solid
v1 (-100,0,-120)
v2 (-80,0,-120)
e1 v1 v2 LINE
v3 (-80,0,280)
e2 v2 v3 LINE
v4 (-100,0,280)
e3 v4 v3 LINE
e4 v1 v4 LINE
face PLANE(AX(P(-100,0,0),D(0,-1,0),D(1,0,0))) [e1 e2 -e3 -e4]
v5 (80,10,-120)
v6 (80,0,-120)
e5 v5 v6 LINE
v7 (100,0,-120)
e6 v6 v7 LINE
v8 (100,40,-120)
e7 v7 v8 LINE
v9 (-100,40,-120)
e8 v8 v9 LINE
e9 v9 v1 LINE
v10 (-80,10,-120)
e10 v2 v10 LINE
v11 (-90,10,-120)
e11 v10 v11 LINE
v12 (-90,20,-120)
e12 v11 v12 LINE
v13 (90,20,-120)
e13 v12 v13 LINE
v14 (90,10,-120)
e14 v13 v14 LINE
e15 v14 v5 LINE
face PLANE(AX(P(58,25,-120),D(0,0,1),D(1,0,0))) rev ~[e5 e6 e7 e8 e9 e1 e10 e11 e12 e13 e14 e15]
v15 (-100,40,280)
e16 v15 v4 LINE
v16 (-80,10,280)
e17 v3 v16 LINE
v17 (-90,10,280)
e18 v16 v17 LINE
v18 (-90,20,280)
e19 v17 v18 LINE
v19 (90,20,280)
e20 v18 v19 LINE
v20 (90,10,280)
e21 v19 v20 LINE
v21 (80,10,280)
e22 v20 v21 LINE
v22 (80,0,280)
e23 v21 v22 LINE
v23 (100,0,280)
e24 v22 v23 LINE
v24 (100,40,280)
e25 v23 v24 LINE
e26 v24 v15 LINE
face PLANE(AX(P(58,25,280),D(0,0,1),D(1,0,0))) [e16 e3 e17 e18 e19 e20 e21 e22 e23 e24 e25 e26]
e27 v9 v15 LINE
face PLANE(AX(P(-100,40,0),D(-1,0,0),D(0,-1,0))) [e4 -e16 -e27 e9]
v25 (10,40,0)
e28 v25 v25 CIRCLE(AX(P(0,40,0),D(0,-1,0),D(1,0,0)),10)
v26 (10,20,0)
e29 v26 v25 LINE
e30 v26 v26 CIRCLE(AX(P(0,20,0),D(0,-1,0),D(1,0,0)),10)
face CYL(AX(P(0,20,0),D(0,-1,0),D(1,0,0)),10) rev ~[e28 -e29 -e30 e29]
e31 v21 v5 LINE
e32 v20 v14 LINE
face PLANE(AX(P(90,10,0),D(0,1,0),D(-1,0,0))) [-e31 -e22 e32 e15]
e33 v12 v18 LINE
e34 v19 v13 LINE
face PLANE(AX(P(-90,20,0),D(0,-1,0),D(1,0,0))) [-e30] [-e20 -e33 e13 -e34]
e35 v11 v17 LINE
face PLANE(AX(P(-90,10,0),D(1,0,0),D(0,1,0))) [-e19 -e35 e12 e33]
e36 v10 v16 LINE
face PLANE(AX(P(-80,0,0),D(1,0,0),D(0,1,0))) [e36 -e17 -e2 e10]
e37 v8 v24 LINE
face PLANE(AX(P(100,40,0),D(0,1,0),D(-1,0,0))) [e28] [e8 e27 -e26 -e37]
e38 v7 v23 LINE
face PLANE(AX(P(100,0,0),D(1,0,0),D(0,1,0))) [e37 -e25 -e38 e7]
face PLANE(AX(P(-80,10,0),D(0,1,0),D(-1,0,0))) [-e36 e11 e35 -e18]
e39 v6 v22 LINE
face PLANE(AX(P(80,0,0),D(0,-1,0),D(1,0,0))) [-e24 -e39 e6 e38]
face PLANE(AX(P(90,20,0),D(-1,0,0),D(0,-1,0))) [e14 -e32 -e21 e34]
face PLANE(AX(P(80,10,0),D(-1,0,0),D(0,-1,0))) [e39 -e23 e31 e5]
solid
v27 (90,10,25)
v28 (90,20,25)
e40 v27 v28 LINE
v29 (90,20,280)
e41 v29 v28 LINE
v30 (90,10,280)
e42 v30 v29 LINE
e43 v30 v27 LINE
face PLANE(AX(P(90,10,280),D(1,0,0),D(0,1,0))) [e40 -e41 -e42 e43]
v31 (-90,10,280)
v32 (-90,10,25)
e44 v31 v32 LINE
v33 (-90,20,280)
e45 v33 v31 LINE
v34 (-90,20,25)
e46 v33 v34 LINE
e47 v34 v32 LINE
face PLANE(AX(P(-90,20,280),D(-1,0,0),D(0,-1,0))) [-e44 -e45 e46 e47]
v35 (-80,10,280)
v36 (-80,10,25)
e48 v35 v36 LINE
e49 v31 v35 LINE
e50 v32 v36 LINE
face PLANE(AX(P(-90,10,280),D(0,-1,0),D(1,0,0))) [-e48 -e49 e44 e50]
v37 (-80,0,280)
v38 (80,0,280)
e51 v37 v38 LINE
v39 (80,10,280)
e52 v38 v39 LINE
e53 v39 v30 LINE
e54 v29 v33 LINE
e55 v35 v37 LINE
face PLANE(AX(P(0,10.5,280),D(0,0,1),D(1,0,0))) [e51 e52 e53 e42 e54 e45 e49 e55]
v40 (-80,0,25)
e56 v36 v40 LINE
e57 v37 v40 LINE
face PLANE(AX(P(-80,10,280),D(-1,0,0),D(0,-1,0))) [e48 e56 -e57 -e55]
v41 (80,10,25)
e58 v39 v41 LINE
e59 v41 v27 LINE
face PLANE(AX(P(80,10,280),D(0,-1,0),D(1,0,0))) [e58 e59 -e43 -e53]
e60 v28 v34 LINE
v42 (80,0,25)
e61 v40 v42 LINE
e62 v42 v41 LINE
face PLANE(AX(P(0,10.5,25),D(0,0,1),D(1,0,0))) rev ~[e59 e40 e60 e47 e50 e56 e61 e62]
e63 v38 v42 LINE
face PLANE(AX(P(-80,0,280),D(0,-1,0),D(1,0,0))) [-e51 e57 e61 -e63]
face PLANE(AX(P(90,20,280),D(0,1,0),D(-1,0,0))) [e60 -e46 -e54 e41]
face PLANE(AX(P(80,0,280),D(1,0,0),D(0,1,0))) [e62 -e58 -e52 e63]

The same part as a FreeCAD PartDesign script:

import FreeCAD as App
import Part
import Sketcher
from FreeCAD import Vector

doc = App.newDocument("Part")
body = doc.addObject("PartDesign::Body", "Body")

# Sketch on XY plane
sketch1 = doc.addObject("Sketcher::SketchObject", "Sketch")
body.addObject(sketch1)
sketch1.AttachmentSupport = (doc.XY_Plane, [""])
sketch1.MapMode = "FlatFace"
sketch1.addGeometry(Part.LineSegment(Vector(80, 10, 0), Vector(80, 0, 0)), False)
sketch1.addGeometry(Part.LineSegment(Vector(80, 0, 0), Vector(100, 0, 0)), False)
sketch1.addGeometry(Part.LineSegment(Vector(100, 0, 0), Vector(100, 40, 0)), False)
sketch1.addGeometry(Part.LineSegment(Vector(100, 40, 0), Vector(-100, 40, 0)), False)
sketch1.addGeometry(Part.LineSegment(Vector(-100, 40, 0), Vector(-100, 0, 0)), False)
sketch1.addGeometry(Part.LineSegment(Vector(-100, 0, 0), Vector(-80, 0, 0)), False)
sketch1.addGeometry(Part.LineSegment(Vector(-80, 0, 0), Vector(-80, 10, 0)), False)
sketch1.addGeometry(Part.LineSegment(Vector(-80, 10, 0), Vector(-90, 10, 0)), False)
sketch1.addGeometry(Part.LineSegment(Vector(-90, 10, 0), Vector(-90, 20, 0)), False)
sketch1.addGeometry(Part.LineSegment(Vector(-90, 20, 0), Vector(90, 20, 0)), False)
sketch1.addGeometry(Part.LineSegment(Vector(90, 20, 0), Vector(90, 10, 0)), False)
sketch1.addGeometry(Part.LineSegment(Vector(90, 10, 0), Vector(80, 10, 0)), False)
sketch1.addConstraint(Sketcher.Constraint("Coincident", 0, 2, 1, 1))
sketch1.addConstraint(Sketcher.Constraint("Coincident", 1, 2, 2, 1))
sketch1.addConstraint(Sketcher.Constraint("Coincident", 2, 2, 3, 1))
sketch1.addConstraint(Sketcher.Constraint("Coincident", 3, 2, 4, 1))
sketch1.addConstraint(Sketcher.Constraint("Coincident", 4, 2, 5, 1))
sketch1.addConstraint(Sketcher.Constraint("Coincident", 5, 2, 6, 1))
sketch1.addConstraint(Sketcher.Constraint("Coincident", 6, 2, 7, 1))
sketch1.addConstraint(Sketcher.Constraint("Coincident", 7, 2, 8, 1))
sketch1.addConstraint(Sketcher.Constraint("Coincident", 8, 2, 9, 1))
sketch1.addConstraint(Sketcher.Constraint("Coincident", 9, 2, 10, 1))
sketch1.addConstraint(Sketcher.Constraint("Coincident", 10, 2, 11, 1))
sketch1.addConstraint(Sketcher.Constraint("Coincident", 11, 2, 0, 1))
sketch1.addConstraint(Sketcher.Constraint("Vertical", 0))
sketch1.addConstraint(Sketcher.Constraint("Horizontal", 1))
sketch1.addConstraint(Sketcher.Constraint("Vertical", 2))
sketch1.addConstraint(Sketcher.Constraint("Horizontal", 3))
sketch1.addConstraint(Sketcher.Constraint("Vertical", 4))
sketch1.addConstraint(Sketcher.Constraint("Horizontal", 5))
sketch1.addConstraint(Sketcher.Constraint("Vertical", 6))
sketch1.addConstraint(Sketcher.Constraint("Horizontal", 7))
sketch1.addConstraint(Sketcher.Constraint("Vertical", 8))
sketch1.addConstraint(Sketcher.Constraint("Horizontal", 9))
sketch1.addConstraint(Sketcher.Constraint("Vertical", 10))
sketch1.addConstraint(Sketcher.Constraint("Horizontal", 11))
sketch1.addConstraint(Sketcher.Constraint("Symmetric", 1, 2, 4, 2, -1, 1))
sketch1.addConstraint(Sketcher.Constraint("Symmetric", 0, 2, 5, 2, -2))
sketch1.addConstraint(Sketcher.Constraint("Symmetric", 7, 2, 10, 2, -2))
sketch1.addConstraint(Sketcher.Constraint("Equal", 11, 0))
sketch1.addConstraint(Sketcher.Constraint("Equal", 6, 8))
sketch1.addConstraint(Sketcher.Constraint("DistanceX", 1, 1, 1, 2, 20.0))
sketch1.addConstraint(Sketcher.Constraint("DistanceX", 3, 2, 3, 1, 200.0))
sketch1.addConstraint(Sketcher.Constraint("DistanceX", 7, 2, 7, 1, 10.0))
sketch1.addConstraint(Sketcher.Constraint("DistanceY", 2, 1, 2, 2, 40.0))
pad1 = doc.addObject("PartDesign::Pad", "Pad")
body.addObject(pad1)
pad1.Profile = sketch1
pad1.Type = "TwoLengths"
pad1.Length = 280
pad1.Length2 = 120

# Sketch on XZ plane
sketch2 = doc.addObject("Sketcher::SketchObject", "Sketch001")
body.addObject(sketch2)
sketch2.AttachmentSupport = (doc.XZ_Plane, [""])
sketch2.MapMode = "FlatFace"
sketch2.AttachmentOffset = App.Placement(Vector(0, 0, -20), App.Rotation())
sketch2.addGeometry(Part.Circle(Vector(0, 0, 0), Vector(0, 0, 1), 10), False)
sketch2.addConstraint(Sketcher.Constraint("Coincident", 0, 3, -1, 1))
sketch2.addConstraint(Sketcher.Constraint("Diameter", 0, 20.0))
pocket1 = doc.addObject("PartDesign::Pocket", "Pocket")
body.addObject(pocket1)
pocket1.Profile = sketch2
pocket1.Length = 20
body2 = doc.addObject("PartDesign::Body", "Body001")

# Sketch on XY plane
sketch3 = doc.addObject("Sketcher::SketchObject", "Sketch002")
body2.addObject(sketch3)
sketch3.AttachmentSupport = (doc.getObject("XY_Plane001"), [""])
sketch3.MapMode = "FlatFace"
sketch3.AttachmentOffset = App.Placement(Vector(0, 0, 280), App.Rotation())
sketch3.addGeometry(Part.LineSegment(Vector(90, 20, 0), Vector(-90, 20, 0)), False)
sketch3.addGeometry(Part.LineSegment(Vector(-90, 20, 0), Vector(-90, 10, 0)), False)
sketch3.addGeometry(Part.LineSegment(Vector(-90, 10, 0), Vector(-80, 10, 0)), False)
sketch3.addGeometry(Part.LineSegment(Vector(-80, 10, 0), Vector(-80, 0, 0)), False)
sketch3.addGeometry(Part.LineSegment(Vector(-80, 0, 0), Vector(80, 0, 0)), False)
sketch3.addGeometry(Part.LineSegment(Vector(80, 0, 0), Vector(80, 10, 0)), False)
sketch3.addGeometry(Part.LineSegment(Vector(80, 10, 0), Vector(90, 10, 0)), False)
sketch3.addGeometry(Part.LineSegment(Vector(90, 10, 0), Vector(90, 20, 0)), False)
sketch3.addConstraint(Sketcher.Constraint("Coincident", 0, 2, 1, 1))
sketch3.addConstraint(Sketcher.Constraint("Coincident", 1, 2, 2, 1))
sketch3.addConstraint(Sketcher.Constraint("Coincident", 2, 2, 3, 1))
sketch3.addConstraint(Sketcher.Constraint("Coincident", 3, 2, 4, 1))
sketch3.addConstraint(Sketcher.Constraint("Coincident", 4, 2, 5, 1))
sketch3.addConstraint(Sketcher.Constraint("Coincident", 5, 2, 6, 1))
sketch3.addConstraint(Sketcher.Constraint("Coincident", 6, 2, 7, 1))
sketch3.addConstraint(Sketcher.Constraint("Coincident", 7, 2, 0, 1))
sketch3.addConstraint(Sketcher.Constraint("Horizontal", 0))
sketch3.addConstraint(Sketcher.Constraint("Vertical", 1))
sketch3.addConstraint(Sketcher.Constraint("Horizontal", 2))
sketch3.addConstraint(Sketcher.Constraint("Vertical", 3))
sketch3.addConstraint(Sketcher.Constraint("Horizontal", 4))
sketch3.addConstraint(Sketcher.Constraint("Vertical", 5))
sketch3.addConstraint(Sketcher.Constraint("Horizontal", 6))
sketch3.addConstraint(Sketcher.Constraint("Vertical", 7))
sketch3.addConstraint(Sketcher.Constraint("Symmetric", 3, 2, 4, 2, -1, 1))
sketch3.addConstraint(Sketcher.Constraint("Symmetric", 1, 2, 6, 2, -2))
sketch3.addConstraint(Sketcher.Constraint("Equal", 6, 1))
sketch3.addConstraint(Sketcher.Constraint("Equal", 1, 3))
sketch3.addConstraint(Sketcher.Constraint("DistanceX", 0, 2, 0, 1, 180.0))
sketch3.addConstraint(Sketcher.Constraint("DistanceX", 2, 1, 2, 2, 10.0))
pad2 = doc.addObject("PartDesign::Pad", "Pad001")
body2.addObject(pad2)
pad2.Profile = sketch3
pad2.Length = 255
pad2.Reversed = True

doc.recompute()
